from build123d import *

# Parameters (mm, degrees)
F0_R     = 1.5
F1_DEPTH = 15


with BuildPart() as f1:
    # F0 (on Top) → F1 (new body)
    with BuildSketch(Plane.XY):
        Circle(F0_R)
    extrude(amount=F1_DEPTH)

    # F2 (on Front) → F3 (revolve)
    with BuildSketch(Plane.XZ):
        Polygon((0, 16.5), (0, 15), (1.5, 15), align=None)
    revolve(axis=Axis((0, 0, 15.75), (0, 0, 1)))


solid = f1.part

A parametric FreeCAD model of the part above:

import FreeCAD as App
import Part
import Sketcher
from FreeCAD import Vector
Q = App.Units.Quantity

doc = App.newDocument("Part")
body = doc.addObject("PartDesign::Body", "Body")

sketch1 = body.newObject("Sketcher::SketchObject", "Sketch")
sketch1.AttachmentSupport = (doc.getObject("XY_Plane"), [""])
sketch1.MapMode = "FlatFace"
sketch1.addGeometry(Part.Circle(Vector(0, 0, 0), Vector(0, 0, 1), 1.5), False)
sketch1.addConstraint(Sketcher.Constraint("Coincident", 0, 3, -1, 1))
sketch1.addConstraint(Sketcher.Constraint("Diameter", 0, Q("3 mm")))
pad1 = body.newObject("PartDesign::Pad", "Pad")
pad1.Profile = sketch1
pad1.Length = 15

sketch2 = body.newObject("Sketcher::SketchObject", "Sketch001")
sketch2.AttachmentSupport = (doc.getObject("XZ_Plane"), [""])
sketch2.MapMode = "FlatFace"
sketch2.addGeometry(Part.LineSegment(Vector(0, 16.5, 0), Vector(0, 15, 0)), False)
sketch2.addGeometry(Part.LineSegment(Vector(0, 15, 0), Vector(1.5, 15, 0)), False)
sketch2.addGeometry(Part.LineSegment(Vector(1.5, 15, 0), Vector(0, 16.5, 0)), False)
sketch2.addConstraint(Sketcher.Constraint("Coincident", 0, 2, 1, 1))
sketch2.addConstraint(Sketcher.Constraint("Coincident", 1, 2, 2, 1))
sketch2.addConstraint(Sketcher.Constraint("Coincident", 2, 2, 0, 1))
sketch2.addConstraint(Sketcher.Constraint("Vertical", 0))
sketch2.addConstraint(Sketcher.Constraint("Horizontal", 1))
sketch2.addConstraint(Sketcher.Constraint("PointOnObject", 0, 2, -2))
sketch2.addConstraint(Sketcher.Constraint("Equal", 1, 0))
sketch2.addConstraint(Sketcher.Constraint("DistanceX", 1, 1, 1, 2, Q("1.5 mm")))
sketch2.addConstraint(Sketcher.Constraint("DistanceY", -1, 1, 0, 2, Q("15 mm")))
revolution = body.newObject("PartDesign::Revolution", "Revolution")
revolution.Profile = sketch2
revolution.ReferenceAxis = (sketch2, ["V_Axis"])
revolution.Angle = 360

doc.recompute()
